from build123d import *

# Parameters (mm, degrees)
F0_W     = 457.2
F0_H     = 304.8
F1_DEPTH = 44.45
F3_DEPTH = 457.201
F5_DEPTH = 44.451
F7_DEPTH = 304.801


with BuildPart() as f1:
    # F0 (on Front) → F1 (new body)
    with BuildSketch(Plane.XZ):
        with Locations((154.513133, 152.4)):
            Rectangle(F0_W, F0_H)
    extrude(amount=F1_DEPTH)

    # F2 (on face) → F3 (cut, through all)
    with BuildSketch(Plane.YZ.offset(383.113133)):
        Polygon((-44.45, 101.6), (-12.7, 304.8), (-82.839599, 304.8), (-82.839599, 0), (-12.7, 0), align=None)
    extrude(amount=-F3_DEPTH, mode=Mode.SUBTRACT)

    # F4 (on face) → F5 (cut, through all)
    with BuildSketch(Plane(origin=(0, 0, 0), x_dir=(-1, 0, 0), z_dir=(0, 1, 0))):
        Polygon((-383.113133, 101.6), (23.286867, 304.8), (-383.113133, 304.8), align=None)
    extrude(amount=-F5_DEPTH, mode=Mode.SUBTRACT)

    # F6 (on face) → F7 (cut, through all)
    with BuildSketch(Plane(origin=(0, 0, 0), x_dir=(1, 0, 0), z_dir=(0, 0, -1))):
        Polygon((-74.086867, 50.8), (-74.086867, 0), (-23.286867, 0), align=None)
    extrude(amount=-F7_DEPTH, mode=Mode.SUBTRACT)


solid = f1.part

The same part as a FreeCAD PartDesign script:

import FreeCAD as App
import Part
import Sketcher
from FreeCAD import Vector
Q = App.Units.Quantity

doc = App.newDocument("Part")
body = doc.addObject("PartDesign::Body", "Body")

# Sketch on XZ plane
sketch1 = body.newObject("Sketcher::SketchObject", "Sketch")
sketch1.AttachmentSupport = (doc.getObject("XZ_Plane"), [""])
sketch1.MapMode = "FlatFace"
sketch1.addGeometry([
    Part.LineSegment(Vector(-74.086867, 304.8, 0), Vector(-74.086867, 0, 0)),
    Part.LineSegment(Vector(-74.086867, 0, 0), Vector(383.113133, 0, 0)),
    Part.LineSegment(Vector(383.113133, 0, 0), Vector(383.113133, 304.8, 0)),
    Part.LineSegment(Vector(383.113133, 304.8, 0), Vector(-74.086867, 304.8, 0)),
], False)
sketch1.addConstraint([
    Sketcher.Constraint("Coincident", 0, 2, 1, 1),
    Sketcher.Constraint("Coincident", 1, 2, 2, 1),
    Sketcher.Constraint("Coincident", 2, 2, 3, 1),
    Sketcher.Constraint("Coincident", 3, 2, 0, 1),
    Sketcher.Constraint("Vertical", 0),
    Sketcher.Constraint("Horizontal", 1),
    Sketcher.Constraint("Vertical", 2),
    Sketcher.Constraint("Horizontal", 3),
    Sketcher.Constraint("PointOnObject", 0, 2, -1),
    Sketcher.Constraint("DistanceX", 1, 1, 1, 2, Q("18 in")),
    Sketcher.Constraint("DistanceY", 0, 2, 0, 1, Q("12 in")),
    Sketcher.Constraint("DistanceX", 0, 2, -1, 1, Q("74.086867 mm")),
])
pad1 = body.newObject("PartDesign::Pad", "Pad")
pad1.Profile = sketch1
pad1.Length = Q("1.75 in")

# Sketch on YZ plane
sketch2 = body.newObject("Sketcher::SketchObject", "Sketch001")
sketch2.AttachmentSupport = (doc.getObject("YZ_Plane"), [""])
sketch2.MapMode = "FlatFace"
sketch2.AttachmentOffset = App.Placement(Vector(0, 0, 383.113133), App.Rotation())
sketch2.addGeometry([
    Part.LineSegment(Vector(-44.45, 101.6, 0), Vector(-12.7, 304.8, 0)),  # 0
    Part.LineSegment(Vector(-12.7, 304.8, 0), Vector(-82.839599, 304.8, 0)),  # 1
    Part.LineSegment(Vector(-82.839599, 304.8, 0), Vector(-82.839599, 0, 0)),  # 2
    Part.LineSegment(Vector(-82.839599, 0, 0), Vector(-12.7, 0, 0)),  # 3
    Part.LineSegment(Vector(-12.7, 0, 0), Vector(-44.45, 101.6, 0)),  # 4
], False)
sketch2.addConstraint([
    Sketcher.Constraint("Coincident", 0, 2, 1, 1),
    Sketcher.Constraint("Coincident", 1, 2, 2, 1),
    Sketcher.Constraint("Coincident", 2, 2, 3, 1),
    Sketcher.Constraint("Coincident", 3, 2, 4, 1),
    Sketcher.Constraint("Coincident", 4, 2, 0, 1),
    Sketcher.Constraint("Horizontal", 1),
    Sketcher.Constraint("Vertical", 2),
    Sketcher.Constraint("Horizontal", 3),
    Sketcher.Constraint("PointOnObject", 2, 2, -1),
    Sketcher.Constraint("Vertical", 0, 2, 3, 2),
    Sketcher.Constraint("DistanceY", 2, 2, 2, 1, Q("12 in")),
    Sketcher.Constraint("DistanceY", -1, 1, 4, 2, Q("4 in")),
    Sketcher.Constraint("DistanceX", 0, 2, -1, 1, Q("0.5 in")),
    Sketcher.Constraint("DistanceX", 4, 2, -1, 1, Q("1.75 in")),
    Sketcher.Constraint("DistanceX", 1, 2, 1, 1, Q("70.139599 mm")),
])
pocket1 = body.newObject("PartDesign::Pocket", "Pocket")
pocket1.Profile = sketch2
pocket1.Type = "ThroughAll"

# Sketch on XZ plane
sketch3 = body.newObject("Sketcher::SketchObject", "Sketch002")
sketch3.AttachmentSupport = (doc.getObject("XZ_Plane"), [""])
sketch3.MapMode = "FlatFace"
sketch3.addGeometry([
    Part.LineSegment(Vector(383.113133, 101.6, 0), Vector(-23.286867, 304.8, 0)),
    Part.LineSegment(Vector(-23.286867, 304.8, 0), Vector(383.113133, 304.8, 0)),
    Part.LineSegment(Vector(383.113133, 304.8, 0), Vector(383.113133, 101.6, 0)),
], False)
sketch3.addConstraint([
    Sketcher.Constraint("Coincident", 0, 2, 1, 1),
    Sketcher.Constraint("Coincident", 1, 2, 2, 1),
    Sketcher.Constraint("Coincident", 2, 2, 0, 1),
    Sketcher.Constraint("Horizontal", 1),
    Sketcher.Constraint("Vertical", 2),
    Sketcher.Constraint("DistanceX", 1, 1, 1, 2, Q("16 in")),
    Sketcher.Constraint("DistanceY", 2, 2, 2, 1, Q("8 in")),
    Sketcher.Constraint("DistanceY", -1, 1, 0, 2, Q("12 in")),
    Sketcher.Constraint("DistanceX", 0, 2, -1, 1, Q("23.286867 mm")),
])
pocket2 = body.newObject("PartDesign::Pocket", "Pocket001")
pocket2.Profile = sketch3
pocket2.Type = "ThroughAll"
pocket2.Reversed = True

# Sketch on XY plane
sketch4 = body.newObject("Sketcher::SketchObject", "Sketch003")
sketch4.AttachmentSupport = (doc.getObject("XY_Plane"), [""])
sketch4.MapMode = "FlatFace"
sketch4.addGeometry([
    Part.LineSegment(Vector(-74.086867, -50.8, 0), Vector(-74.086867, 0, 0)),
    Part.LineSegment(Vector(-74.086867, 0, 0), Vector(-23.286867, 0, 0)),
    Part.LineSegment(Vector(-23.286867, 0, 0), Vector(-74.086867, -50.8, 0)),
], False)
sketch4.addConstraint([
    Sketcher.Constraint("Coincident", 0, 2, 1, 1),
    Sketcher.Constraint("Coincident", 1, 2, 2, 1),
    Sketcher.Constraint("Coincident", 2, 2, 0, 1),
    Sketcher.Constraint("Vertical", 0),
    Sketcher.Constraint("Horizontal", 1),
    Sketcher.Constraint("PointOnObject", 0, 2, -1),
    Sketcher.Constraint("Equal", 1, 0),
    Sketcher.Constraint("DistanceX", 1, 1, 1, 2, Q("2 in")),
    Sketcher.Constraint("DistanceX", 0, 2, -1, 1, Q("74.086867 mm")),
])
pocket3 = body.newObject("PartDesign::Pocket", "Pocket002")
pocket3.Profile = sketch4
pocket3.Type = "ThroughAll"
pocket3.Reversed = True

doc.recompute()
